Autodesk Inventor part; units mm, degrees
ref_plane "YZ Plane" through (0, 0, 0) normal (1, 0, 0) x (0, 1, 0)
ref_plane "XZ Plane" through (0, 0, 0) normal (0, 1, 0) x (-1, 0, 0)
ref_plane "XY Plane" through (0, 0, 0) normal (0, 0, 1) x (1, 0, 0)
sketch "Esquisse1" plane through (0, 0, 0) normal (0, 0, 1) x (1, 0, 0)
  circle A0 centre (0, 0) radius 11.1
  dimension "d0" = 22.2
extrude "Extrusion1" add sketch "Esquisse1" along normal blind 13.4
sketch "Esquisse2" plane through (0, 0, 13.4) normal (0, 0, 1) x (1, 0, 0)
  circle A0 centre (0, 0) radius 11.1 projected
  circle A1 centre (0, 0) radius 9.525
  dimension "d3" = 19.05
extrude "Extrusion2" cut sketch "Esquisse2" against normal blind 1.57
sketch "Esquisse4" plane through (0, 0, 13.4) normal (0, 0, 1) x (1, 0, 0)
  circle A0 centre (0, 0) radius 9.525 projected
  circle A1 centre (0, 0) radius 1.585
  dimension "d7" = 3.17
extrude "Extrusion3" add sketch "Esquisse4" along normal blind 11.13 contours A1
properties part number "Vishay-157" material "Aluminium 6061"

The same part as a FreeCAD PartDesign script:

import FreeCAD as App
import Part
import Sketcher
from FreeCAD import Vector
Q = App.Units.Quantity

doc = App.newDocument("Part")
body = doc.addObject("PartDesign::Body", "Body")

sketch1 = doc.addObject("Sketcher::SketchObject", "Sketch")
body.addObject(sketch1)
sketch1.AttachmentSupport = (doc.XY_Plane, [""])
sketch1.MapMode = "FlatFace"
sketch1.addGeometry(Part.Circle(Vector(0, 0, 0), Vector(0, 0, 1), 11), False)
sketch1.addConstraint([
    Sketcher.Constraint("Coincident", 0, 3, -1, 1),
    Sketcher.Constraint("Diameter", 0, Q("22.2 mm")),
])
pad1 = doc.addObject("PartDesign::Pad", "Pad")
body.addObject(pad1)
pad1.Profile = sketch1
pad1.Length = 13.4

sketch2 = doc.addObject("Sketcher::SketchObject", "Sketch001")
body.addObject(sketch2)
sketch2.AttachmentSupport = (doc.XY_Plane, [""])
sketch2.MapMode = "FlatFace"
sketch2.AttachmentOffset = App.Placement(Vector(0, 0, 13.4), App.Rotation())
sketch2.addGeometry([
    Part.Circle(Vector(0, 0, 0), Vector(0, 0, 1), 11),
    Part.Circle(Vector(0, 0, 0), Vector(0, 0, 1), 10),
], False)
sketch2.addConstraint([
    Sketcher.Constraint("Coincident", 0, 3, -1, 1),
    Sketcher.Constraint("Coincident", 1, 3, -1, 1),
    Sketcher.Constraint("Diameter", 1, Q("19.05 mm")),
    Sketcher.Constraint("Diameter", 0, Q("22.2 mm")),
])
pocket1 = doc.addObject("PartDesign::Pocket", "Pocket")
body.addObject(pocket1)
pocket1.Profile = sketch2
pocket1.Length = 1.57

sketch3 = doc.addObject("Sketcher::SketchObject", "Sketch002")
body.addObject(sketch3)
sketch3.AttachmentSupport = (doc.XY_Plane, [""])
sketch3.MapMode = "FlatFace"
sketch3.AttachmentOffset = App.Placement(Vector(0, 0, 13.4), App.Rotation())
sketch3.addGeometry(Part.Circle(Vector(0, 0, 0), Vector(0, 0, 1), 1.6), False)
sketch3.addConstraint([
    Sketcher.Constraint("Coincident", 0, 3, -1, 1),
    Sketcher.Constraint("Diameter", 0, Q("3.17 mm")),
])
pad2 = doc.addObject("PartDesign::Pad", "Pad001")
body.addObject(pad2)
pad2.Profile = sketch3
pad2.Length = 11.13

doc.recompute()
